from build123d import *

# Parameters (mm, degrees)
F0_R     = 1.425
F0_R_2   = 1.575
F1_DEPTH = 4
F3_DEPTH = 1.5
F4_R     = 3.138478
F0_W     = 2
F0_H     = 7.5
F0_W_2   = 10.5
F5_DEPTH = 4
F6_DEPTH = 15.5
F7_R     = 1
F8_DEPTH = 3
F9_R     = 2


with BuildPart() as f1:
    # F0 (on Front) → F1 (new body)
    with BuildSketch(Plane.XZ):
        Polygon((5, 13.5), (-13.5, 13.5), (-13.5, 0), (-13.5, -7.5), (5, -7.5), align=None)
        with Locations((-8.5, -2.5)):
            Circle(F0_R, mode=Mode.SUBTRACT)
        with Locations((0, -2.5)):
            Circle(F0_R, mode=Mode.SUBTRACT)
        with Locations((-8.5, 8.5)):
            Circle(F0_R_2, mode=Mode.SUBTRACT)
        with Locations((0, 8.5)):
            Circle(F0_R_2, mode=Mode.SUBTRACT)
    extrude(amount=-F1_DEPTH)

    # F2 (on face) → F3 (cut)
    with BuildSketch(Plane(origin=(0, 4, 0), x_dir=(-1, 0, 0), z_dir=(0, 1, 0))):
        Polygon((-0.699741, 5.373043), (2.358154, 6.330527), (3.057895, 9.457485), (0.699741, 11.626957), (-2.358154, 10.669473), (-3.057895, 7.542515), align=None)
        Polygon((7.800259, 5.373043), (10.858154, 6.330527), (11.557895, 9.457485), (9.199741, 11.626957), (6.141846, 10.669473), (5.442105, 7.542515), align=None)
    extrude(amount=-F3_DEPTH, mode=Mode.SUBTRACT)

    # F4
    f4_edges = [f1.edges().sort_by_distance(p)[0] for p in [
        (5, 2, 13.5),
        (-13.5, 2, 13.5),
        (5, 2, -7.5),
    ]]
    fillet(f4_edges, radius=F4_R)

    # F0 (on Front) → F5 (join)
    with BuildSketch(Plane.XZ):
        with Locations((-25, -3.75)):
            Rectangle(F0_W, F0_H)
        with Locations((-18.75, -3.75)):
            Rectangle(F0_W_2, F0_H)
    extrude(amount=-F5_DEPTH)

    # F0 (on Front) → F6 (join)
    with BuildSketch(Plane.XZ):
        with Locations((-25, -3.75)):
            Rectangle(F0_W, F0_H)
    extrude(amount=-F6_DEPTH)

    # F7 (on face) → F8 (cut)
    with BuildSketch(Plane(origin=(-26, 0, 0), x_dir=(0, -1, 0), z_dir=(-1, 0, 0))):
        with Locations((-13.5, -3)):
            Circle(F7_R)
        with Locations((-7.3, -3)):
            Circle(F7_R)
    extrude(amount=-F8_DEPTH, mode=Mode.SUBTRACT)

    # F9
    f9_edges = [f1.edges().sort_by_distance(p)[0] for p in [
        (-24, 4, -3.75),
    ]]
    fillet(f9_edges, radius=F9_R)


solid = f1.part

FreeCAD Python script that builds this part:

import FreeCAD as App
import Part
import Sketcher
from FreeCAD import Vector
Q = App.Units.Quantity


def edges_at(feature, points):
    """Names of the edges that pass closest to the given points."""
    edges = feature.Shape.Edges
    near = lambda p: min(range(len(edges)), key=lambda i: edges[i].distToShape(Part.Vertex(*p))[0])
    return sorted({f"Edge{near(p) + 1}" for p in points})

doc = App.newDocument("Part")
body = doc.addObject("PartDesign::Body", "Body")

# Sketch on XZ plane
sketch1 = doc.addObject("Sketcher::SketchObject", "Sketch")
body.addObject(sketch1)
sketch1.AttachmentSupport = (doc.XZ_Plane, [""])
sketch1.MapMode = "FlatFace"
sketch1.addGeometry([
    Part.LineSegment(Vector(5, 13.5, 0), Vector(-13.5, 13.5, 0)),  # 0
    Part.LineSegment(Vector(-13.5, 13.5, 0), Vector(-13.5, -7.5, 0)),  # 1
    Part.LineSegment(Vector(-13.5, -7.5, 0), Vector(5, -7.5, 0)),  # 2
    Part.LineSegment(Vector(5, -7.5, 0), Vector(5, 13.5, 0)),  # 3
    Part.Circle(Vector(-8.5, -2.5, 0), Vector(0, 0, 1), 1.4),  # 4
    Part.Circle(Vector(0, -2.5, 0), Vector(0, 0, 1), 1.4),  # 5
    Part.Circle(Vector(-8.5, 8.5, 0), Vector(0, 0, 1), 1.6),  # 6
    Part.Circle(Vector(0, 8.5, 0), Vector(0, 0, 1), 1.6),  # 7
], False)
sketch1.addConstraint([
    Sketcher.Constraint("Coincident", 0, 2, 1, 1),
    Sketcher.Constraint("Coincident", 1, 2, 2, 1),
    Sketcher.Constraint("Coincident", 2, 2, 3, 1),
    Sketcher.Constraint("Coincident", 3, 2, 0, 1),
    Sketcher.Constraint("Horizontal", 0),
    Sketcher.Constraint("Vertical", 1),
    Sketcher.Constraint("Horizontal", 2),
    Sketcher.Constraint("Vertical", 3),
    Sketcher.Constraint("Equal", 4, 5),
    Sketcher.Constraint("Equal", 6, 7),
    Sketcher.Constraint("PointOnObject", 5, 3, -2),
    Sketcher.Constraint("PointOnObject", 7, 3, -2),
    Sketcher.Constraint("Horizontal", 4, 3, 5, 3),
    Sketcher.Constraint("Horizontal", 6, 3, 7, 3),
    Sketcher.Constraint("Vertical", 4, 3, 6, 3),
    Sketcher.Constraint("Diameter", 4, Q("2.85 mm")),
    Sketcher.Constraint("Diameter", 6, Q("3.15 mm")),
    Sketcher.Constraint("DistanceY", 1, 2, 1, 1, Q("21 mm")),
    Sketcher.Constraint("DistanceX", 0, 2, 0, 1, Q("18.5 mm")),
    Sketcher.Constraint("DistanceX", -1, 1, 2, 2, Q("5 mm")),
    Sketcher.Constraint("DistanceY", 4, 3, 6, 3, Q("11 mm")),
    Sketcher.Constraint("DistanceX", 0, 2, 6, 3, Q("5 mm")),
    Sketcher.Constraint("DistanceY", 6, 3, 0, 2, Q("5 mm")),
    Sketcher.Constraint("DistanceY", 4, 3, -1, 1, Q("2.5 mm")),
])
pad1 = doc.addObject("PartDesign::Pad", "Pad")
body.addObject(pad1)
pad1.Profile = sketch1
pad1.Length = 4
pad1.Reversed = True

# Sketch on XZ plane
sketch2 = doc.addObject("Sketcher::SketchObject", "Sketch001")
body.addObject(sketch2)
sketch2.AttachmentSupport = (doc.XZ_Plane, [""])
sketch2.MapMode = "FlatFace"
sketch2.AttachmentOffset = App.Placement(Vector(0, 0, -4), App.Rotation())
sketch2.addGeometry([
    Part.LineSegment(Vector(0.7, 5.4, 0), Vector(-2.4, 6.3, 0)),  # 0
    Part.LineSegment(Vector(-2.4, 6.3, 0), Vector(-3.1, 9.5, 0)),  # 1
    Part.LineSegment(Vector(-3.1, 9.5, 0), Vector(-0.7, 11.6, 0)),  # 2
    Part.LineSegment(Vector(-0.7, 11.6, 0), Vector(2.4, 10.7, 0)),  # 3
    Part.LineSegment(Vector(2.4, 10.7, 0), Vector(3.1, 7.5, 0)),  # 4
    Part.LineSegment(Vector(3.1, 7.5, 0), Vector(0.7, 5.4, 0)),  # 5
    Part.LineSegment(Vector(-7.8, 5.4, 0), Vector(-10.9, 6.3, 0)),  # 6
    Part.LineSegment(Vector(-10.9, 6.3, 0), Vector(-11.6, 9.5, 0)),  # 7
    Part.LineSegment(Vector(-11.6, 9.5, 0), Vector(-9.2, 11.6, 0)),  # 8
    Part.LineSegment(Vector(-9.2, 11.6, 0), Vector(-6.1, 10.7, 0)),  # 9
    Part.LineSegment(Vector(-6.1, 10.7, 0), Vector(-5.4, 7.5, 0)),  # 10
    Part.LineSegment(Vector(-5.4, 7.5, 0), Vector(-7.8, 5.4, 0)),  # 11
], False)
sketch2.addConstraint([
    Sketcher.Constraint("Coincident", 0, 2, 1, 1),
    Sketcher.Constraint("Coincident", 1, 2, 2, 1),
    Sketcher.Constraint("Coincident", 2, 2, 3, 1),
    Sketcher.Constraint("Coincident", 3, 2, 4, 1),
    Sketcher.Constraint("Coincident", 4, 2, 5, 1),
    Sketcher.Constraint("Coincident", 5, 2, 0, 1),
    Sketcher.Constraint("Coincident", 6, 2, 7, 1),
    Sketcher.Constraint("Coincident", 7, 2, 8, 1),
    Sketcher.Constraint("Coincident", 8, 2, 9, 1),
    Sketcher.Constraint("Coincident", 9, 2, 10, 1),
    Sketcher.Constraint("Coincident", 10, 2, 11, 1),
    Sketcher.Constraint("Coincident", 11, 2, 6, 1),
    Sketcher.Constraint("Parallel", 0, 3),
    Sketcher.Constraint("Parallel", 1, 4),
    Sketcher.Constraint("Parallel", 2, 5),
    Sketcher.Constraint("Parallel", 3, 6),
    Sketcher.Constraint("Parallel", 4, 7),
    Sketcher.Constraint("Parallel", 5, 8),
    Sketcher.Constraint("Parallel", 6, 9),
    Sketcher.Constraint("Parallel", 7, 10),
    Sketcher.Constraint("Parallel", 8, 11),
    Sketcher.Constraint("Horizontal", 0, 2, 6, 2),
    Sketcher.Constraint("Horizontal", 1, 2, 7, 2),
    Sketcher.Constraint("Horizontal", 2, 2, 8, 2),
    Sketcher.Constraint("Horizontal", 3, 2, 9, 2),
    Sketcher.Constraint("Horizontal", 4, 2, 10, 2),
    Sketcher.Constraint("Equal", 0, 1),
    Sketcher.Constraint("Equal", 1, 2),
    Sketcher.Constraint("Equal", 2, 3),
    Sketcher.Constraint("DistanceX", 6, 2, 0, 2, Q("8.5 mm")),
    Sketcher.Constraint("DistanceX", 2, 2, -1, 1, Q("0.699741 mm")),
    Sketcher.Constraint("DistanceX", -1, 1, 5, 2, Q("0.699741 mm")),
    Sketcher.Constraint("DistanceX", 1, 2, 0, 2, Q("0.699741 mm")),
    Sketcher.Constraint("DistanceY", 0, 2, 1, 2, Q("3.126958 mm")),
    Sketcher.Constraint("DistanceY", 0, 2, 2, 2, Q("5.29643 mm")),
    Sketcher.Constraint("DistanceY", -1, 1, 0, 2, Q("6.330527 mm")),
])
pocket1 = doc.addObject("PartDesign::Pocket", "Pocket")
body.addObject(pocket1)
pocket1.Profile = sketch2
pocket1.Length = 1.5
pocket1.Reversed = True
doc.recompute()

fillet = doc.addObject("PartDesign::Fillet", "Fillet")
body.addObject(fillet)
fillet.Base = (pocket1, edges_at(pocket1, [(5, 2, 13.5), (-13.5, 2, 13.5), (5, 2, -7.5)]))
fillet.Radius = 3.138478

# Sketch on XZ plane
sketch3 = doc.addObject("Sketcher::SketchObject", "Sketch002")
body.addObject(sketch3)
sketch3.AttachmentSupport = (doc.XZ_Plane, [""])
sketch3.MapMode = "FlatFace"
sketch3.addGeometry([
    Part.LineSegment(Vector(-26, 0, 0), Vector(-26, -8, 0)),
    Part.LineSegment(Vector(-26, -8, 0), Vector(-14, -8, 0)),
    Part.LineSegment(Vector(-14, -8, 0), Vector(-14, 0, 0)),
    Part.LineSegment(Vector(-14, 0, 0), Vector(-26, 0, 0)),
], False)
sketch3.addConstraint([
    Sketcher.Constraint("Coincident", 0, 2, 1, 1),
    Sketcher.Constraint("Coincident", 1, 2, 2, 1),
    Sketcher.Constraint("Coincident", 2, 2, 3, 1),
    Sketcher.Constraint("Coincident", 3, 2, 0, 1),
    Sketcher.Constraint("Vertical", 0),
    Sketcher.Constraint("Horizontal", 1),
    Sketcher.Constraint("Vertical", 2),
    Sketcher.Constraint("Horizontal", 3),
    Sketcher.Constraint("PointOnObject", 2, 2, -1),
    Sketcher.Constraint("DistanceX", 1, 1, 1, 2, Q("12.5 mm")),
    Sketcher.Constraint("DistanceY", 0, 2, 0, 1, Q("7.5 mm")),
    Sketcher.Constraint("DistanceX", 0, 2, -1, 1, Q("26 mm")),
])
pad2 = doc.addObject("PartDesign::Pad", "Pad001")
body.addObject(pad2)
pad2.Profile = sketch3
pad2.Length = 4
pad2.Reversed = True

# Sketch on XZ plane
sketch4 = doc.addObject("Sketcher::SketchObject", "Sketch003")
body.addObject(sketch4)
sketch4.AttachmentSupport = (doc.XZ_Plane, [""])
sketch4.MapMode = "FlatFace"
sketch4.addGeometry([
    Part.LineSegment(Vector(-26, 0, 0), Vector(-26, -7.5, 0)),
    Part.LineSegment(Vector(-26, -7.5, 0), Vector(-24, -7.5, 0)),
    Part.LineSegment(Vector(-24, -7.5, 0), Vector(-24, 0, 0)),
    Part.LineSegment(Vector(-24, 0, 0), Vector(-26, 0, 0)),
], False)
sketch4.addConstraint([
    Sketcher.Constraint("Coincident", 0, 2, 1, 1),
    Sketcher.Constraint("Coincident", 1, 2, 2, 1),
    Sketcher.Constraint("Coincident", 2, 2, 3, 1),
    Sketcher.Constraint("Coincident", 3, 2, 0, 1),
    Sketcher.Constraint("Vertical", 0),
    Sketcher.Constraint("Horizontal", 1),
    Sketcher.Constraint("Vertical", 2),
    Sketcher.Constraint("Horizontal", 3),
    Sketcher.Constraint("PointOnObject", 2, 2, -1),
    Sketcher.Constraint("DistanceX", 1, 1, 1, 2, Q("2 mm")),
    Sketcher.Constraint("DistanceY", 0, 2, 0, 1, Q("7.5 mm")),
    Sketcher.Constraint("DistanceX", 0, 2, -1, 1, Q("26 mm")),
])
pad3 = doc.addObject("PartDesign::Pad", "Pad002")
body.addObject(pad3)
pad3.Profile = sketch4
pad3.Length = 15.5
pad3.Reversed = True

# Sketch on YZ plane
sketch5 = doc.addObject("Sketcher::SketchObject", "Sketch004")
body.addObject(sketch5)
sketch5.AttachmentSupport = (doc.YZ_Plane, [""])
sketch5.MapMode = "FlatFace"
sketch5.AttachmentOffset = App.Placement(Vector(0, 0, -26), App.Rotation())
sketch5.addGeometry([
    Part.Circle(Vector(13.5, -3, 0), Vector(0, 0, 1), 1),
    Part.Circle(Vector(7.3, -3, 0), Vector(0, 0, 1), 1),
], False)
sketch5.addConstraint([
    Sketcher.Constraint("Equal", 0, 1),
    Sketcher.Constraint("Horizontal", 0, 3, 1, 3),
    Sketcher.Constraint("Diameter", 0, Q("2 mm")),
    Sketcher.Constraint("DistanceY", 0, 3, -1, 1, Q("3 mm")),
    Sketcher.Constraint("DistanceX", -1, 1, 0, 3, Q("13.5 mm")),
    Sketcher.Constraint("DistanceX", -1, 1, 1, 3, Q("7.3 mm")),
])
pocket2 = doc.addObject("PartDesign::Pocket", "Pocket001")
body.addObject(pocket2)
pocket2.Profile = sketch5
pocket2.Length = 3
pocket2.Reversed = True
doc.recompute()

fillet2 = doc.addObject("PartDesign::Fillet", "Fillet001")
body.addObject(fillet2)
fillet2.Base = (pocket2, edges_at(pocket2, [(-24, 4, -3.75)]))
fillet2.Radius = 2

doc.recompute()
